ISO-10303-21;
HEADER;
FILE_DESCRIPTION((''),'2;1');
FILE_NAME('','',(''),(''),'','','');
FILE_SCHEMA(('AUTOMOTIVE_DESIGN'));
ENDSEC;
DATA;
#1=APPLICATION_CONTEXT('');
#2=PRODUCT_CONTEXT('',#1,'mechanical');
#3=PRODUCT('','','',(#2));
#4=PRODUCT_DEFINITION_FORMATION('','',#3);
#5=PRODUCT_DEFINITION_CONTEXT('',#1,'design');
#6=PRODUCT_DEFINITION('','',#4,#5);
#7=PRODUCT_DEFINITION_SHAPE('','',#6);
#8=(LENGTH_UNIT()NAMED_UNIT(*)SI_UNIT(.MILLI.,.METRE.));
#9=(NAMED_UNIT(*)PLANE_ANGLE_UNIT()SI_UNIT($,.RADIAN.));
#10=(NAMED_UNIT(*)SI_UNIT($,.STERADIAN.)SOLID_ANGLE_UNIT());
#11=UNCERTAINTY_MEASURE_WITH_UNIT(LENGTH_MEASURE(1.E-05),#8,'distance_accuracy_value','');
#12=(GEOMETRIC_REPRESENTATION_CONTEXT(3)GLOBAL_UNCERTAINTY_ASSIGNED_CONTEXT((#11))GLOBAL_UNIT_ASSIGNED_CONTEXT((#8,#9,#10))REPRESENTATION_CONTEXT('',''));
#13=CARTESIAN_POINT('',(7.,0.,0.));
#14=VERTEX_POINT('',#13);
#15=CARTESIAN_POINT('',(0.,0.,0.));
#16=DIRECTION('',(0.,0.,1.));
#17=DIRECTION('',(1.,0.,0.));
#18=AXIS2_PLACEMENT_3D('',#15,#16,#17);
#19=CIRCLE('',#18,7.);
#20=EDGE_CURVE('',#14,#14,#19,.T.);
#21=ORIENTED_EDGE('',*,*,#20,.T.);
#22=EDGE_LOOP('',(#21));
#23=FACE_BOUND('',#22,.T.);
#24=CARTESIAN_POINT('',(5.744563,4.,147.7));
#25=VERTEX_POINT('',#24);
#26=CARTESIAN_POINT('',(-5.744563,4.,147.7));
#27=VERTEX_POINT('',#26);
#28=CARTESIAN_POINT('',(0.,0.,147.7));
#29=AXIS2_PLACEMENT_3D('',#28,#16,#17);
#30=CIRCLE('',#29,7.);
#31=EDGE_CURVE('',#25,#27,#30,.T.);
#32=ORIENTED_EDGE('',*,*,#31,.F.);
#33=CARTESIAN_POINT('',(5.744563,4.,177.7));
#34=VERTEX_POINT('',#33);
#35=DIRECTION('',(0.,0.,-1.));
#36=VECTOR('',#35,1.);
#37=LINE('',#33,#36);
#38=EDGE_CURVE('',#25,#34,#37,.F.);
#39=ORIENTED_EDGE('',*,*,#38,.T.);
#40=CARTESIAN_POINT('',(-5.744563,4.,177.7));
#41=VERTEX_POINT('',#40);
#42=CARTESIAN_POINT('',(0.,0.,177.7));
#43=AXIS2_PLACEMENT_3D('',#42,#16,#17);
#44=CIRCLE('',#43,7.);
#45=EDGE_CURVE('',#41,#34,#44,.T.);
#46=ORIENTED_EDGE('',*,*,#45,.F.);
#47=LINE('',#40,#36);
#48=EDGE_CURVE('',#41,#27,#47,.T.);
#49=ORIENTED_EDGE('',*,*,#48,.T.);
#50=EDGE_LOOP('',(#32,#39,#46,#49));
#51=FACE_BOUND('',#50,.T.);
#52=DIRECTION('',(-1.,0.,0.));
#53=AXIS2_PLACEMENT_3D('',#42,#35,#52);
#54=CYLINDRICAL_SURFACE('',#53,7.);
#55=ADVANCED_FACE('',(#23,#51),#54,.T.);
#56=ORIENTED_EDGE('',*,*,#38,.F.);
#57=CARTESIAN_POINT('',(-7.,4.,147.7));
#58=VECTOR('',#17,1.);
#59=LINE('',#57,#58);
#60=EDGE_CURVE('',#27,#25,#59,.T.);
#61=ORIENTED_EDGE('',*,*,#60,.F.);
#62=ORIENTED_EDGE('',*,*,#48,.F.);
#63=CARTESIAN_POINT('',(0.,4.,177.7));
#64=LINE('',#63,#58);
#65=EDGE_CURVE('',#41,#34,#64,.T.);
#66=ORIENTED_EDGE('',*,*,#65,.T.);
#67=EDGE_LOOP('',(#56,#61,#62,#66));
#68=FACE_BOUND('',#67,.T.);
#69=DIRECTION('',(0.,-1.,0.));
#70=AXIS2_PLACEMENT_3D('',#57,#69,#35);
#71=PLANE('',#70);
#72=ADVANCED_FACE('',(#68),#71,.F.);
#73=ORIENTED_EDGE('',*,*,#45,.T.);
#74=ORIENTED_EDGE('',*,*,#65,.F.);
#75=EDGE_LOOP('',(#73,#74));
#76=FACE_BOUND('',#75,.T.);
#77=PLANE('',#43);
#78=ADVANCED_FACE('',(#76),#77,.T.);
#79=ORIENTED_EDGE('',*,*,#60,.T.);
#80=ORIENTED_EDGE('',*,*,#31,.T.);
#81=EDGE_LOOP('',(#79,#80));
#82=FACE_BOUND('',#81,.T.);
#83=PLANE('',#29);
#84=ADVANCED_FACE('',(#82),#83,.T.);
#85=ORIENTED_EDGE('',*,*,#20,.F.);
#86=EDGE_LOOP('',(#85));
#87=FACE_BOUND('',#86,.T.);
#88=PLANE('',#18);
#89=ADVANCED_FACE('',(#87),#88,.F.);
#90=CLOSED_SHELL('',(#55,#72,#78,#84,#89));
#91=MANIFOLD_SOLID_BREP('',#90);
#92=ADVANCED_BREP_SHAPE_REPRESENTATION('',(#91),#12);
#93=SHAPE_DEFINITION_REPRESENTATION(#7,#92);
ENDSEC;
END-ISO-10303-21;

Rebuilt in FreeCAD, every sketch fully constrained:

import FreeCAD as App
import Part
import Sketcher

V = App.Vector
Q = App.Units.Quantity


def add_polygon(sketch, points):
    """Adds a closed chain of lines whose ends are joined by coincident constraints."""
    first, n = sketch.GeometryCount, len(points)
    for a, b in zip(points, points[1:] + points[:1]):
        sketch.addGeometry(Part.LineSegment(App.Vector(*a, 0), App.Vector(*b, 0)), False)
    for i in range(n):
        sketch.addConstraint(Sketcher.Constraint("Coincident", first + i, 2, first + (i + 1) % n, 1))

doc = App.newDocument("Part")
body = doc.addObject("PartDesign::Body", "Body")

# Sketch on XY plane
sketch1 = doc.addObject("Sketcher::SketchObject", "Sketch")
body.addObject(sketch1)
sketch1.AttachmentSupport = (doc.XY_Plane, [""])
sketch1.MapMode = "FlatFace"
sketch1.addGeometry(Part.Circle(V(0, 0, 0), V(0, 0, 1), 7), False)
sketch1.addConstraint([
    Sketcher.Constraint("Coincident", 0, 3, -1, 1),
    Sketcher.Constraint("Diameter", 0, Q("14 mm")),
])
pad1 = doc.addObject("PartDesign::Pad", "Pad")
body.addObject(pad1)
pad1.Profile = sketch1
pad1.Length = 177.7

# Sketch on XY plane
sketch2 = doc.addObject("Sketcher::SketchObject", "Sketch001")
body.addObject(sketch2)
sketch2.AttachmentSupport = (doc.XY_Plane, [""])
sketch2.MapMode = "FlatFace"
sketch2.AttachmentOffset = App.Placement(V(0, 0, 177.7), App.Rotation())
add_polygon(sketch2, [(-7, 10), (-7, 4), (7, 4), (7, 10)])  # lines 0-3
sketch2.addConstraint([
    Sketcher.Constraint("Vertical", 0),
    Sketcher.Constraint("Horizontal", 1),
    Sketcher.Constraint("Vertical", 2),
    Sketcher.Constraint("Horizontal", 3),
    Sketcher.Constraint("DistanceX", 1, 1, 1, 2, Q("14 mm")),
    Sketcher.Constraint("DistanceY", 0, 2, 0, 1, Q("6 mm")),
    Sketcher.Constraint("DistanceX", 0, 2, -1, 1, Q("7 mm")),
    Sketcher.Constraint("DistanceY", -1, 1, 0, 2, Q("4 mm")),
])
pocket1 = doc.addObject("PartDesign::Pocket", "Pocket")
body.addObject(pocket1)
pocket1.Profile = sketch2
pocket1.Length = 30

doc.recompute()
